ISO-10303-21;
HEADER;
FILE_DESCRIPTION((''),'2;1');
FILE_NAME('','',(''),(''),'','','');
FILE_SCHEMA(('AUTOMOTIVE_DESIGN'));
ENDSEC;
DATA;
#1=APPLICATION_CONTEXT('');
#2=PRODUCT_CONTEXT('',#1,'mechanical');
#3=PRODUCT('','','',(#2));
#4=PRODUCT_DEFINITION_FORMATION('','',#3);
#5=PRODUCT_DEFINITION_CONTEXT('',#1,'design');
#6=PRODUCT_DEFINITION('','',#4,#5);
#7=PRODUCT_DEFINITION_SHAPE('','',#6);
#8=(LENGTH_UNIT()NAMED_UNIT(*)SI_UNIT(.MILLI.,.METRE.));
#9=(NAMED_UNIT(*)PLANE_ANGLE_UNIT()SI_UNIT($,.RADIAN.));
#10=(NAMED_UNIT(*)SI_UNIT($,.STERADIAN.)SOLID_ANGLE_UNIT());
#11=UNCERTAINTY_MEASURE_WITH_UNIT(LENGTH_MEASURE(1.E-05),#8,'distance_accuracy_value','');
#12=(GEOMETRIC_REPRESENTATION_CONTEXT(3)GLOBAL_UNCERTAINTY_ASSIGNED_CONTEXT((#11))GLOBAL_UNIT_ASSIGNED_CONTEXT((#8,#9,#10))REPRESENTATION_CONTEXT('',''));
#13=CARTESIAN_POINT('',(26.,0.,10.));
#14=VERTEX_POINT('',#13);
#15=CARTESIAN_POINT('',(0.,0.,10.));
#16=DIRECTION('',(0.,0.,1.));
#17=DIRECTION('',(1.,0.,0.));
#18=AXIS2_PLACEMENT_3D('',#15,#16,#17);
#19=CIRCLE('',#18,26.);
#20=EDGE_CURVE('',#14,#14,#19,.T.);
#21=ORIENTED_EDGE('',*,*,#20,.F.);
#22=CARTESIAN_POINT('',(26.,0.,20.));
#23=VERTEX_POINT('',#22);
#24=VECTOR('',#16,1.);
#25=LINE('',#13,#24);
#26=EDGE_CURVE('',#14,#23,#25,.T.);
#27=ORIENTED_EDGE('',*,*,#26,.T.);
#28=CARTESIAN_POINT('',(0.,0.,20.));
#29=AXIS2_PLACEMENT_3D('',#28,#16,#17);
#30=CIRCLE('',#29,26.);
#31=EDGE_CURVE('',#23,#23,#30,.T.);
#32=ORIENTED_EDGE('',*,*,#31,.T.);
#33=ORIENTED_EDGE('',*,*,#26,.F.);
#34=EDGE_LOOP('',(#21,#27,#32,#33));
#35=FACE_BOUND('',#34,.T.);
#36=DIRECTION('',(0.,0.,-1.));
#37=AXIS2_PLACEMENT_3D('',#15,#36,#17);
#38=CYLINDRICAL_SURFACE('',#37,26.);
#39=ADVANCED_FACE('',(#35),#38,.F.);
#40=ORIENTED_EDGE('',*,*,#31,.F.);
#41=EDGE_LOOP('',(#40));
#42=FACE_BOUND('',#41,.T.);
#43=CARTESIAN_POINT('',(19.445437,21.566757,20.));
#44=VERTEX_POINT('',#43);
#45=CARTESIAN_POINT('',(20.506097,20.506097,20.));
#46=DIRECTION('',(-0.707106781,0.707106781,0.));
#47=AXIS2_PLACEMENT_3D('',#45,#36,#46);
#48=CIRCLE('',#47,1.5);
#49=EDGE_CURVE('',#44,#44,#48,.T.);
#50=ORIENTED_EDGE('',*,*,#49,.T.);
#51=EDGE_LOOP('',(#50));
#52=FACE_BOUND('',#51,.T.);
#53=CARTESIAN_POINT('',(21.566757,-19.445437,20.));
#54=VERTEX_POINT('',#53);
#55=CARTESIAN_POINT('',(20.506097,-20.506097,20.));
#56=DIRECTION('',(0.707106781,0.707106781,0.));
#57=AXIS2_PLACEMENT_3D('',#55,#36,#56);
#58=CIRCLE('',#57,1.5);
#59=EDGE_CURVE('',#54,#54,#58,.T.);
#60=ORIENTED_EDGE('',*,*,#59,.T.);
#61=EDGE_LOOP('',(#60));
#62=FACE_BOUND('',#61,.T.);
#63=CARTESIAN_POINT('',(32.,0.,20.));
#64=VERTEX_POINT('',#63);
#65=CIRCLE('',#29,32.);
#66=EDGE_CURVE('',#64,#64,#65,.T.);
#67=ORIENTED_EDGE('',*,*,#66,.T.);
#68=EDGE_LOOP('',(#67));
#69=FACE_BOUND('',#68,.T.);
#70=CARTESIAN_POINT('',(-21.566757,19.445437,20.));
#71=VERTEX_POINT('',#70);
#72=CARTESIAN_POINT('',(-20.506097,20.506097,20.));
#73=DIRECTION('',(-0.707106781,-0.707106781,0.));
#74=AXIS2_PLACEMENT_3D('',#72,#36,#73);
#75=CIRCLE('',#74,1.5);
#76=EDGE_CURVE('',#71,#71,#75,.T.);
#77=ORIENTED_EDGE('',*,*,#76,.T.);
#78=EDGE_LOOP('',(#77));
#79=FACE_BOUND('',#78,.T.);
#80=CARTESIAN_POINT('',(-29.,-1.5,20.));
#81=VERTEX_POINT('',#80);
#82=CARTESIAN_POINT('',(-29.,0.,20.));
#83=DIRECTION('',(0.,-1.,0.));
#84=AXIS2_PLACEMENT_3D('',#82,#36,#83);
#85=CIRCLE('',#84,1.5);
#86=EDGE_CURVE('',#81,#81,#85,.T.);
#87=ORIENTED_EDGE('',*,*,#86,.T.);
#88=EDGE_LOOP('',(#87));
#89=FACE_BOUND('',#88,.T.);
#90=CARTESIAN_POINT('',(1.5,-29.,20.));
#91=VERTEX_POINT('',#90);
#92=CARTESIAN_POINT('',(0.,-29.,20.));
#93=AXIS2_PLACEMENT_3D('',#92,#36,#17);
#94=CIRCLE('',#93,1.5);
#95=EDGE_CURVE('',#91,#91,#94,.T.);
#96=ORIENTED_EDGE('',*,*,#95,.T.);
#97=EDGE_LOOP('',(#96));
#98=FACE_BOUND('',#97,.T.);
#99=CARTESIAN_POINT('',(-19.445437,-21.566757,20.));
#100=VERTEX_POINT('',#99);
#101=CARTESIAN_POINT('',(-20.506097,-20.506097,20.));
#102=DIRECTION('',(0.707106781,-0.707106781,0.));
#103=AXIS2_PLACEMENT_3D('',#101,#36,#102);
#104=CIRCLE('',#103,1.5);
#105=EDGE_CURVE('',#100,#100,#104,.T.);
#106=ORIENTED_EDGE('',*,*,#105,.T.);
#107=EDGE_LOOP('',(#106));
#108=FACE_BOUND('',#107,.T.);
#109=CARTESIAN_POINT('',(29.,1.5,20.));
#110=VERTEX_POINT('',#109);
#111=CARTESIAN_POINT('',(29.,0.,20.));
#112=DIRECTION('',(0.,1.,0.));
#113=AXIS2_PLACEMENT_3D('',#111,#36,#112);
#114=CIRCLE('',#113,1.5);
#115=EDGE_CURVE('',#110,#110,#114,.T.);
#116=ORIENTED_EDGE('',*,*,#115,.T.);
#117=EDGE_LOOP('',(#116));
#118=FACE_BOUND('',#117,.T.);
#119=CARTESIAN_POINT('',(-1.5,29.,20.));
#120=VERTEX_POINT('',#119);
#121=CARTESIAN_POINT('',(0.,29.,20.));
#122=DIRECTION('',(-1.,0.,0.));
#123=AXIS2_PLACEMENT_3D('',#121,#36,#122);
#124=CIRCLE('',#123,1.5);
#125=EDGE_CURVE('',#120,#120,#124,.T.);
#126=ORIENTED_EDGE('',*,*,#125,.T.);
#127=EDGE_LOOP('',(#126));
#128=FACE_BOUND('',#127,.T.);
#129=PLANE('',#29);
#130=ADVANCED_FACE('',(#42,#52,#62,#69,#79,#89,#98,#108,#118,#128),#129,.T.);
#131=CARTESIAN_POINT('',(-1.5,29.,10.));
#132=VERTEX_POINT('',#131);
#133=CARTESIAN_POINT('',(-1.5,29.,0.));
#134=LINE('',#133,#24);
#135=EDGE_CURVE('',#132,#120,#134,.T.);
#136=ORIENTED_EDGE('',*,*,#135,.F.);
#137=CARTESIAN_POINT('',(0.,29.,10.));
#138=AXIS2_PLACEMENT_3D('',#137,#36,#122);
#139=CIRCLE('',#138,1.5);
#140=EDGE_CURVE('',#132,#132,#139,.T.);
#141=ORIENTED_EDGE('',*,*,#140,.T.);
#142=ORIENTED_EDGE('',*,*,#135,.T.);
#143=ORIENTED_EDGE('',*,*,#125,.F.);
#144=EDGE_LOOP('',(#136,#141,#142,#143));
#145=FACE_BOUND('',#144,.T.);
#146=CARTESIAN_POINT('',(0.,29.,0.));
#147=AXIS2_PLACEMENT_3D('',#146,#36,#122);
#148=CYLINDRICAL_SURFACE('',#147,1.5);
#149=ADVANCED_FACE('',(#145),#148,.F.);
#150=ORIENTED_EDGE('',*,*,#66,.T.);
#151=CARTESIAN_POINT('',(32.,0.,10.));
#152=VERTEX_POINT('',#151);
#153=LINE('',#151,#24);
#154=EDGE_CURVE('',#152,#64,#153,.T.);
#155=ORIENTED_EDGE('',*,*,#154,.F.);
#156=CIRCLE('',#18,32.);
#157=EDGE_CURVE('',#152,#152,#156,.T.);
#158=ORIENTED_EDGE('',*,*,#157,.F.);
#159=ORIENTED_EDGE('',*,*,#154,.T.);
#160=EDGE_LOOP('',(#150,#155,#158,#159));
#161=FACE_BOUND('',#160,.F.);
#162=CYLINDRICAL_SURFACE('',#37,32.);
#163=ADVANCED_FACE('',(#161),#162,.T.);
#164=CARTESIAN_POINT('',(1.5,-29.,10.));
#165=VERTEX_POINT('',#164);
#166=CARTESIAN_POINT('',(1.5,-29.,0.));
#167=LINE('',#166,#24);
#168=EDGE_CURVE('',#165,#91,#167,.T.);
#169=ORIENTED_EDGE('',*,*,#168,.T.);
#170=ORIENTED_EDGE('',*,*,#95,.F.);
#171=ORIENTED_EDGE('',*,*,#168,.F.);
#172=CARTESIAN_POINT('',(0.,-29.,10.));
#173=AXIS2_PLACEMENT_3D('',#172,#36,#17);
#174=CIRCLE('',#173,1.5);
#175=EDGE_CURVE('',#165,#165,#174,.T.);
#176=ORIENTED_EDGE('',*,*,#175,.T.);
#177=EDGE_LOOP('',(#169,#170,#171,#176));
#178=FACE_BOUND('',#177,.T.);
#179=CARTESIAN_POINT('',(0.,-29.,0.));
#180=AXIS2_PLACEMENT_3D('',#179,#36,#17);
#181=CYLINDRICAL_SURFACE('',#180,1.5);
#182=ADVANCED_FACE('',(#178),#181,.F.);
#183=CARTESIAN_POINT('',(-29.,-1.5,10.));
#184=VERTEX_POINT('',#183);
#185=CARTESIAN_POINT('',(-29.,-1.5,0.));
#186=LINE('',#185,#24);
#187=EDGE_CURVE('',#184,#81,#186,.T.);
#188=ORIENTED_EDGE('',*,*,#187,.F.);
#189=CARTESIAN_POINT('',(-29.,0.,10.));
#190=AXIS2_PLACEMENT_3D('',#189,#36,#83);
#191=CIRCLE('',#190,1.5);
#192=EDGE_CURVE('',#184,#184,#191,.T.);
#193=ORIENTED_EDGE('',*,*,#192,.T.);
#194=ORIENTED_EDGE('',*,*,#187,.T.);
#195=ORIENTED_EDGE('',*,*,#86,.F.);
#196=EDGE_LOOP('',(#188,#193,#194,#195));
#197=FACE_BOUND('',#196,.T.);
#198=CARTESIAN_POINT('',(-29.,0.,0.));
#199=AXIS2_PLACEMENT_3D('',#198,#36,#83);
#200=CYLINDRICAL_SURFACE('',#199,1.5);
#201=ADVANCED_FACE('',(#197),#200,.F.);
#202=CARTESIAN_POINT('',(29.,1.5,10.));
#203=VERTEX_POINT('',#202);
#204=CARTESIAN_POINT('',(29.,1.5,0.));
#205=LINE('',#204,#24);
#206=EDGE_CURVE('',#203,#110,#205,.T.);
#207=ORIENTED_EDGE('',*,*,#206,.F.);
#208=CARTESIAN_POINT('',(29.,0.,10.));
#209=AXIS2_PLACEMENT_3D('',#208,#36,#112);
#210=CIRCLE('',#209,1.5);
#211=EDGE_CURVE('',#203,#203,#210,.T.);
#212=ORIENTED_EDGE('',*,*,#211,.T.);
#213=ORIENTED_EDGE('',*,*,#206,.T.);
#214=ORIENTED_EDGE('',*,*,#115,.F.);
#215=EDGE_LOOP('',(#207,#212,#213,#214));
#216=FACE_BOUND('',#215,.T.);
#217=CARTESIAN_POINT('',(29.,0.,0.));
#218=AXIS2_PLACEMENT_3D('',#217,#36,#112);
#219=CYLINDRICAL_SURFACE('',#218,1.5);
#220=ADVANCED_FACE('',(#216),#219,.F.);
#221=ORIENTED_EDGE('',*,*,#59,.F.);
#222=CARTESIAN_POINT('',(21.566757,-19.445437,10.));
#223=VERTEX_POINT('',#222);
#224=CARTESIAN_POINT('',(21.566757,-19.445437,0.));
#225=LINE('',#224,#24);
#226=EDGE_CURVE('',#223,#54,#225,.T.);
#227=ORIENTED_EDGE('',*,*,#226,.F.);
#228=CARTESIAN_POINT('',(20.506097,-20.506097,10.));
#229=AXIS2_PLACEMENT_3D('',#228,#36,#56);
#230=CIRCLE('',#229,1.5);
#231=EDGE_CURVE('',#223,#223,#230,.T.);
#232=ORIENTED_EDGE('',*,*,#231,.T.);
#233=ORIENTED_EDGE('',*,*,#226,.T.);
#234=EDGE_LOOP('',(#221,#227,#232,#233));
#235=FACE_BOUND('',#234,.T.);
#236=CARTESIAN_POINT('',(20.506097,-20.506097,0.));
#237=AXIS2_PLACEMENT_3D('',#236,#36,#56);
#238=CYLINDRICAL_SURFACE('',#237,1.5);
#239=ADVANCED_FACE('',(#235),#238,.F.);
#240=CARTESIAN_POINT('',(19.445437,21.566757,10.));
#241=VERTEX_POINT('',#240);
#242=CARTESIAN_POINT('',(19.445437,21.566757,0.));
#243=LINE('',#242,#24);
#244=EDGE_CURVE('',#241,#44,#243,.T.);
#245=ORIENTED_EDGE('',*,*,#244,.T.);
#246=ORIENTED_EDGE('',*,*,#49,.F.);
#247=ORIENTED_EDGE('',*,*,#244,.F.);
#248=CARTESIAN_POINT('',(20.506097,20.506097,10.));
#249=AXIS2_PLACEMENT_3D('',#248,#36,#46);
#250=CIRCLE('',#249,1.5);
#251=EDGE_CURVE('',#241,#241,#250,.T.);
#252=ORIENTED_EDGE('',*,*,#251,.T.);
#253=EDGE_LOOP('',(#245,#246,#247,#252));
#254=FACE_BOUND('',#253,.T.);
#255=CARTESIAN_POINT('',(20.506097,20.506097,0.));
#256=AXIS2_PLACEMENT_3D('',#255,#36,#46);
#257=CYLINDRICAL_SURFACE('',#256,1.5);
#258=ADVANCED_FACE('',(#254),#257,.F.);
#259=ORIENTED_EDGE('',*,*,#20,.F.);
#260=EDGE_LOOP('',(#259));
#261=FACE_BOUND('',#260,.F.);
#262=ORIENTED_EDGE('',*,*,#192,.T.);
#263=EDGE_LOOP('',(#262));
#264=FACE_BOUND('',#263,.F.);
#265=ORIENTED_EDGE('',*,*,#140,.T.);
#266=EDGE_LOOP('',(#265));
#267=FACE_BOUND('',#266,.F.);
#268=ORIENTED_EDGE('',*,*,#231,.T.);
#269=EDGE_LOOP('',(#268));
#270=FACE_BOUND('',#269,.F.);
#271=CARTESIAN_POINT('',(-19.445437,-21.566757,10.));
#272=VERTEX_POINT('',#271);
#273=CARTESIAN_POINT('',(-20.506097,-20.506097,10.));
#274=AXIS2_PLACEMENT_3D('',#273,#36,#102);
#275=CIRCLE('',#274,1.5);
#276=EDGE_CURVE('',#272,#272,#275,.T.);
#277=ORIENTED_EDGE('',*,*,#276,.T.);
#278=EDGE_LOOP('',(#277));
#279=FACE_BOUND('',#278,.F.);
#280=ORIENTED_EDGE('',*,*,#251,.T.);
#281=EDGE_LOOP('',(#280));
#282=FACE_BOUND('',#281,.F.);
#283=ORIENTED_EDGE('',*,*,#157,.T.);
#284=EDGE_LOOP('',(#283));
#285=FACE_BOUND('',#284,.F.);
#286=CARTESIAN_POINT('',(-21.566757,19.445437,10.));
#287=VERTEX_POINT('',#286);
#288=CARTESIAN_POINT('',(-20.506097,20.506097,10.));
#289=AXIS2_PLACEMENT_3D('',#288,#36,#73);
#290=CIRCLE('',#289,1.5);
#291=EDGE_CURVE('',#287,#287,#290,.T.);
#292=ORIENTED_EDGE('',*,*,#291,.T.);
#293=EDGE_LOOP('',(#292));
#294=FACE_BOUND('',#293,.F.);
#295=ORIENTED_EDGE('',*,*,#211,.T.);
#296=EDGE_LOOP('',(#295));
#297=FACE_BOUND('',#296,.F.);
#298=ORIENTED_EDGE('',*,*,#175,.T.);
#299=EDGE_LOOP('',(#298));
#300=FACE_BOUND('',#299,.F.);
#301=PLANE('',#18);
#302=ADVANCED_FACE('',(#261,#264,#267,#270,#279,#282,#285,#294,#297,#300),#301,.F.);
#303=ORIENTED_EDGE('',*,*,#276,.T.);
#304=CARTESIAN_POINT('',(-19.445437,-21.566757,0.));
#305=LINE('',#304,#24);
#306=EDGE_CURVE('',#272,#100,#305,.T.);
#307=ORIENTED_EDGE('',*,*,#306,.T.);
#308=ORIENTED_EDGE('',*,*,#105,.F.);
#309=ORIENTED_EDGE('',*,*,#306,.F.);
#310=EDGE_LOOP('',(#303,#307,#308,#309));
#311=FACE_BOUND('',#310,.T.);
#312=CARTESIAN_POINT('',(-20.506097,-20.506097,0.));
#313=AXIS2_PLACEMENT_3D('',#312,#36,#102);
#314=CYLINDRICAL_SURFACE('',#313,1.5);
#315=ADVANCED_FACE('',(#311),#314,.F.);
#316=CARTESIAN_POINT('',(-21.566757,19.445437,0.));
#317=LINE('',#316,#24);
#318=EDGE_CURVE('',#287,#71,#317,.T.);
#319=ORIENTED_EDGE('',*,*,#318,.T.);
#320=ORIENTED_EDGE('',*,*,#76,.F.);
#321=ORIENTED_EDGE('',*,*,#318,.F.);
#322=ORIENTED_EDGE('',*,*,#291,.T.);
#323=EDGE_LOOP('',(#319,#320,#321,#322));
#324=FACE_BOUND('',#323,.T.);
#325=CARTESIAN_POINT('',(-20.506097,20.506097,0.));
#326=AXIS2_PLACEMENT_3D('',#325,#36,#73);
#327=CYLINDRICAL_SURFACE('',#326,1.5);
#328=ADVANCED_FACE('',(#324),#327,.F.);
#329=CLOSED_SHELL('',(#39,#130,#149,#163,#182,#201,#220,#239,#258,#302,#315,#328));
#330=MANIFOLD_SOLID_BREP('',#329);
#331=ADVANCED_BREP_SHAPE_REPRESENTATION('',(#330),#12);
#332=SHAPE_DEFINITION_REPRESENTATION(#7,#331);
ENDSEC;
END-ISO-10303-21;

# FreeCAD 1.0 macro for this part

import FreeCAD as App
import Part
import Sketcher
from FreeCAD import Vector

doc = App.newDocument("Part")
body = doc.addObject("PartDesign::Body", "Body")

sketch1 = doc.addObject("Sketcher::SketchObject", "Sketch")
body.addObject(sketch1)
sketch1.AttachmentSupport = (doc.XY_Plane, [""])
sketch1.MapMode = "FlatFace"
sketch1.addGeometry(Part.Circle(Vector(0, 0, 0), Vector(0, 0, 1), 1.5), False)
sketch1.addConstraint(Sketcher.Constraint("Coincident", 0, 3, -1, 1))
sketch1.addConstraint(Sketcher.Constraint("Diameter", 0, 3.0))
pad1 = doc.addObject("PartDesign::Pad", "Pad")
body.addObject(pad1)
pad1.Profile = sketch1
pad1.Length = 30
body2 = doc.addObject("PartDesign::Body", "Body001")
doc.recompute()

body.Placement = App.Placement(Vector(20.506097, -20.506097, 0), App.Rotation(Vector(0, 0, 1), 45))
boolean = doc.addObject("PartDesign::Boolean", "Boolean")
body2.addObject(boolean)
boolean.Type = "Fuse"
boolean.addObjects([body])
body3 = doc.addObject("PartDesign::Body", "Body002")

sketch2 = doc.addObject("Sketcher::SketchObject", "Sketch001")
body3.addObject(sketch2)
sketch2.AttachmentSupport = (doc.getObject("XY_Plane002"), [""])
sketch2.MapMode = "FlatFace"
sketch2.addGeometry(Part.Circle(Vector(29, 0, 0), Vector(0, 0, 1), 1.5), False)
sketch2.addConstraint(Sketcher.Constraint("PointOnObject", 0, 3, -1))
sketch2.addConstraint(Sketcher.Constraint("Diameter", 0, 3.0))
sketch2.addConstraint(Sketcher.Constraint("DistanceX", -1, 1, 0, 3, 29.0))
pad2 = doc.addObject("PartDesign::Pad", "Pad001")
body3.addObject(pad2)
pad2.Profile = sketch2
pad2.Length = 30
body4 = doc.addObject("PartDesign::Body", "Body003")

sketch3 = doc.addObject("Sketcher::SketchObject", "Sketch002")
body4.addObject(sketch3)
sketch3.AttachmentSupport = (doc.getObject("XY_Plane003"), [""])
sketch3.MapMode = "FlatFace"
sketch3.addGeometry(Part.Circle(Vector(0, 0, 0), Vector(0, 0, 1), 1.5), False)
sketch3.addConstraint(Sketcher.Constraint("Coincident", 0, 3, -1, 1))
sketch3.addConstraint(Sketcher.Constraint("Diameter", 0, 3.0))
pad3 = doc.addObject("PartDesign::Pad", "Pad002")
body4.addObject(pad3)
pad3.Profile = sketch3
pad3.Length = 30
body5 = doc.addObject("PartDesign::Body", "Body004")
doc.recompute()

body4.Placement = App.Placement(Vector(20.506097, 20.506097, 0), App.Rotation(Vector(0, 0, 1), 135))
boolean2 = doc.addObject("PartDesign::Boolean", "Boolean001")
body5.addObject(boolean2)
boolean2.Type = "Fuse"
boolean2.addObjects([body4])
body6 = doc.addObject("PartDesign::Body", "Body005")

sketch4 = doc.addObject("Sketcher::SketchObject", "Sketch003")
body6.addObject(sketch4)
sketch4.AttachmentSupport = (doc.getObject("XY_Plane005"), [""])
sketch4.MapMode = "FlatFace"
sketch4.addGeometry(Part.Circle(Vector(0, 29, 0), Vector(0, 0, 1), 1.5), False)
sketch4.addConstraint(Sketcher.Constraint("PointOnObject", 0, 3, -2))
sketch4.addConstraint(Sketcher.Constraint("Diameter", 0, 3.0))
sketch4.addConstraint(Sketcher.Constraint("DistanceY", -1, 1, 0, 3, 29.0))
pad4 = doc.addObject("PartDesign::Pad", "Pad003")
body6.addObject(pad4)
pad4.Profile = sketch4
pad4.Length = 30
body7 = doc.addObject("PartDesign::Body", "Body006")

sketch5 = doc.addObject("Sketcher::SketchObject", "Sketch004")
body7.addObject(sketch5)
sketch5.AttachmentSupport = (doc.getObject("XY_Plane006"), [""])
sketch5.MapMode = "FlatFace"
sketch5.addGeometry(Part.Circle(Vector(0, 0, 0), Vector(0, 0, 1), 1.5), False)
sketch5.addConstraint(Sketcher.Constraint("Coincident", 0, 3, -1, 1))
sketch5.addConstraint(Sketcher.Constraint("Diameter", 0, 3.0))
pad5 = doc.addObject("PartDesign::Pad", "Pad004")
body7.addObject(pad5)
pad5.Profile = sketch5
pad5.Length = 30
body8 = doc.addObject("PartDesign::Body", "Body007")
doc.recompute()

body7.Placement = App.Placement(Vector(-20.506097, 20.506097, 0), App.Rotation(Vector(0, 0, 1), 225))
boolean3 = doc.addObject("PartDesign::Boolean", "Boolean002")
body8.addObject(boolean3)
boolean3.Type = "Fuse"
boolean3.addObjects([body7])
body9 = doc.addObject("PartDesign::Body", "Body008")

sketch6 = doc.addObject("Sketcher::SketchObject", "Sketch005")
body9.addObject(sketch6)
sketch6.AttachmentSupport = (doc.getObject("XY_Plane008"), [""])
sketch6.MapMode = "FlatFace"
sketch6.addGeometry(Part.Circle(Vector(-29, 0, 0), Vector(0, 0, 1), 1.5), False)
sketch6.addConstraint(Sketcher.Constraint("PointOnObject", 0, 3, -1))
sketch6.addConstraint(Sketcher.Constraint("Diameter", 0, 3.0))
sketch6.addConstraint(Sketcher.Constraint("DistanceX", 0, 3, -1, 1, 29.0))
pad6 = doc.addObject("PartDesign::Pad", "Pad005")
body9.addObject(pad6)
pad6.Profile = sketch6
pad6.Length = 30
body10 = doc.addObject("PartDesign::Body", "Body009")

sketch7 = doc.addObject("Sketcher::SketchObject", "Sketch006")
body10.addObject(sketch7)
sketch7.AttachmentSupport = (doc.getObject("XY_Plane009"), [""])
sketch7.MapMode = "FlatFace"
sketch7.addGeometry(Part.Circle(Vector(0, 0, 0), Vector(0, 0, 1), 1.5), False)
sketch7.addConstraint(Sketcher.Constraint("Coincident", 0, 3, -1, 1))
sketch7.addConstraint(Sketcher.Constraint("Diameter", 0, 3.0))
pad7 = doc.addObject("PartDesign::Pad", "Pad006")
body10.addObject(pad7)
pad7.Profile = sketch7
pad7.Length = 30
body11 = doc.addObject("PartDesign::Body", "Body010")
doc.recompute()

body10.Placement = App.Placement(Vector(-20.506097, -20.506097, 0), App.Rotation(Vector(0, 0, -1), 45))
boolean4 = doc.addObject("PartDesign::Boolean", "Boolean003")
body11.addObject(boolean4)
boolean4.Type = "Fuse"
boolean4.addObjects([body10])
body12 = doc.addObject("PartDesign::Body", "Body011")
body12.AllowCompound = True

sketch8 = doc.addObject("Sketcher::SketchObject", "Sketch007")
body12.addObject(sketch8)
sketch8.AttachmentSupport = (doc.getObject("XY_Plane011"), [""])
sketch8.MapMode = "FlatFace"
sketch8.addGeometry(Part.Circle(Vector(0, -29, 0), Vector(0, 0, 1), 1.5), False)
sketch8.addConstraint(Sketcher.Constraint("PointOnObject", 0, 3, -2))
sketch8.addConstraint(Sketcher.Constraint("Diameter", 0, 3.0))
sketch8.addConstraint(Sketcher.Constraint("DistanceY", 0, 3, -1, 1, 29.0))
pad8 = doc.addObject("PartDesign::Pad", "Pad007")
body12.addObject(pad8)
pad8.Profile = sketch8
pad8.Length = 30
doc.recompute()

boolean5 = doc.addObject("PartDesign::Boolean", "Boolean004")
body12.addObject(boolean5)
boolean5.Type = "Fuse"
boolean5.addObjects([body2])
doc.recompute()

boolean6 = doc.addObject("PartDesign::Boolean", "Boolean005")
body12.addObject(boolean6)
boolean6.Type = "Fuse"
boolean6.addObjects([body3])
doc.recompute()

boolean7 = doc.addObject("PartDesign::Boolean", "Boolean006")
body12.addObject(boolean7)
boolean7.Type = "Fuse"
boolean7.addObjects([body5])
doc.recompute()

boolean8 = doc.addObject("PartDesign::Boolean", "Boolean007")
body12.addObject(boolean8)
boolean8.Type = "Fuse"
boolean8.addObjects([body6])
doc.recompute()

boolean9 = doc.addObject("PartDesign::Boolean", "Boolean008")
body12.addObject(boolean9)
boolean9.Type = "Fuse"
boolean9.addObjects([body8])
doc.recompute()

boolean10 = doc.addObject("PartDesign::Boolean", "Boolean009")
body12.addObject(boolean10)
boolean10.Type = "Fuse"
boolean10.addObjects([body9])
doc.recompute()

boolean11 = doc.addObject("PartDesign::Boolean", "Boolean010")
body12.addObject(boolean11)
boolean11.Type = "Fuse"
boolean11.addObjects([body11])
body13 = doc.addObject("PartDesign::Body", "Body012")

sketch9 = doc.addObject("Sketcher::SketchObject", "Sketch008")
body13.addObject(sketch9)
sketch9.AttachmentSupport = (doc.getObject("XY_Plane012"), [""])
sketch9.MapMode = "FlatFace"
sketch9.AttachmentOffset = App.Placement(Vector(0, 0, 10), App.Rotation())
sketch9.addGeometry(Part.Circle(Vector(0, 0, 0), Vector(0, 0, 1), 32), False)
sketch9.addGeometry(Part.Circle(Vector(0, 0, 0), Vector(0, 0, 1), 26), False)
sketch9.addConstraint(Sketcher.Constraint("Coincident", 0, 3, -1, 1))
sketch9.addConstraint(Sketcher.Constraint("Coincident", 1, 3, -1, 1))
sketch9.addConstraint(Sketcher.Constraint("Diameter", 0, 64.0))
sketch9.addConstraint(Sketcher.Constraint("Diameter", 1, 52.0))
pad9 = doc.addObject("PartDesign::Pad", "Pad008")
body13.addObject(pad9)
pad9.Profile = sketch9
pad9.Length = 10
doc.recompute()

boolean12 = doc.addObject("PartDesign::Boolean", "Boolean011")
body13.addObject(boolean12)
boolean12.Type = "Cut"
boolean12.addObjects([body12])

doc.recompute()
